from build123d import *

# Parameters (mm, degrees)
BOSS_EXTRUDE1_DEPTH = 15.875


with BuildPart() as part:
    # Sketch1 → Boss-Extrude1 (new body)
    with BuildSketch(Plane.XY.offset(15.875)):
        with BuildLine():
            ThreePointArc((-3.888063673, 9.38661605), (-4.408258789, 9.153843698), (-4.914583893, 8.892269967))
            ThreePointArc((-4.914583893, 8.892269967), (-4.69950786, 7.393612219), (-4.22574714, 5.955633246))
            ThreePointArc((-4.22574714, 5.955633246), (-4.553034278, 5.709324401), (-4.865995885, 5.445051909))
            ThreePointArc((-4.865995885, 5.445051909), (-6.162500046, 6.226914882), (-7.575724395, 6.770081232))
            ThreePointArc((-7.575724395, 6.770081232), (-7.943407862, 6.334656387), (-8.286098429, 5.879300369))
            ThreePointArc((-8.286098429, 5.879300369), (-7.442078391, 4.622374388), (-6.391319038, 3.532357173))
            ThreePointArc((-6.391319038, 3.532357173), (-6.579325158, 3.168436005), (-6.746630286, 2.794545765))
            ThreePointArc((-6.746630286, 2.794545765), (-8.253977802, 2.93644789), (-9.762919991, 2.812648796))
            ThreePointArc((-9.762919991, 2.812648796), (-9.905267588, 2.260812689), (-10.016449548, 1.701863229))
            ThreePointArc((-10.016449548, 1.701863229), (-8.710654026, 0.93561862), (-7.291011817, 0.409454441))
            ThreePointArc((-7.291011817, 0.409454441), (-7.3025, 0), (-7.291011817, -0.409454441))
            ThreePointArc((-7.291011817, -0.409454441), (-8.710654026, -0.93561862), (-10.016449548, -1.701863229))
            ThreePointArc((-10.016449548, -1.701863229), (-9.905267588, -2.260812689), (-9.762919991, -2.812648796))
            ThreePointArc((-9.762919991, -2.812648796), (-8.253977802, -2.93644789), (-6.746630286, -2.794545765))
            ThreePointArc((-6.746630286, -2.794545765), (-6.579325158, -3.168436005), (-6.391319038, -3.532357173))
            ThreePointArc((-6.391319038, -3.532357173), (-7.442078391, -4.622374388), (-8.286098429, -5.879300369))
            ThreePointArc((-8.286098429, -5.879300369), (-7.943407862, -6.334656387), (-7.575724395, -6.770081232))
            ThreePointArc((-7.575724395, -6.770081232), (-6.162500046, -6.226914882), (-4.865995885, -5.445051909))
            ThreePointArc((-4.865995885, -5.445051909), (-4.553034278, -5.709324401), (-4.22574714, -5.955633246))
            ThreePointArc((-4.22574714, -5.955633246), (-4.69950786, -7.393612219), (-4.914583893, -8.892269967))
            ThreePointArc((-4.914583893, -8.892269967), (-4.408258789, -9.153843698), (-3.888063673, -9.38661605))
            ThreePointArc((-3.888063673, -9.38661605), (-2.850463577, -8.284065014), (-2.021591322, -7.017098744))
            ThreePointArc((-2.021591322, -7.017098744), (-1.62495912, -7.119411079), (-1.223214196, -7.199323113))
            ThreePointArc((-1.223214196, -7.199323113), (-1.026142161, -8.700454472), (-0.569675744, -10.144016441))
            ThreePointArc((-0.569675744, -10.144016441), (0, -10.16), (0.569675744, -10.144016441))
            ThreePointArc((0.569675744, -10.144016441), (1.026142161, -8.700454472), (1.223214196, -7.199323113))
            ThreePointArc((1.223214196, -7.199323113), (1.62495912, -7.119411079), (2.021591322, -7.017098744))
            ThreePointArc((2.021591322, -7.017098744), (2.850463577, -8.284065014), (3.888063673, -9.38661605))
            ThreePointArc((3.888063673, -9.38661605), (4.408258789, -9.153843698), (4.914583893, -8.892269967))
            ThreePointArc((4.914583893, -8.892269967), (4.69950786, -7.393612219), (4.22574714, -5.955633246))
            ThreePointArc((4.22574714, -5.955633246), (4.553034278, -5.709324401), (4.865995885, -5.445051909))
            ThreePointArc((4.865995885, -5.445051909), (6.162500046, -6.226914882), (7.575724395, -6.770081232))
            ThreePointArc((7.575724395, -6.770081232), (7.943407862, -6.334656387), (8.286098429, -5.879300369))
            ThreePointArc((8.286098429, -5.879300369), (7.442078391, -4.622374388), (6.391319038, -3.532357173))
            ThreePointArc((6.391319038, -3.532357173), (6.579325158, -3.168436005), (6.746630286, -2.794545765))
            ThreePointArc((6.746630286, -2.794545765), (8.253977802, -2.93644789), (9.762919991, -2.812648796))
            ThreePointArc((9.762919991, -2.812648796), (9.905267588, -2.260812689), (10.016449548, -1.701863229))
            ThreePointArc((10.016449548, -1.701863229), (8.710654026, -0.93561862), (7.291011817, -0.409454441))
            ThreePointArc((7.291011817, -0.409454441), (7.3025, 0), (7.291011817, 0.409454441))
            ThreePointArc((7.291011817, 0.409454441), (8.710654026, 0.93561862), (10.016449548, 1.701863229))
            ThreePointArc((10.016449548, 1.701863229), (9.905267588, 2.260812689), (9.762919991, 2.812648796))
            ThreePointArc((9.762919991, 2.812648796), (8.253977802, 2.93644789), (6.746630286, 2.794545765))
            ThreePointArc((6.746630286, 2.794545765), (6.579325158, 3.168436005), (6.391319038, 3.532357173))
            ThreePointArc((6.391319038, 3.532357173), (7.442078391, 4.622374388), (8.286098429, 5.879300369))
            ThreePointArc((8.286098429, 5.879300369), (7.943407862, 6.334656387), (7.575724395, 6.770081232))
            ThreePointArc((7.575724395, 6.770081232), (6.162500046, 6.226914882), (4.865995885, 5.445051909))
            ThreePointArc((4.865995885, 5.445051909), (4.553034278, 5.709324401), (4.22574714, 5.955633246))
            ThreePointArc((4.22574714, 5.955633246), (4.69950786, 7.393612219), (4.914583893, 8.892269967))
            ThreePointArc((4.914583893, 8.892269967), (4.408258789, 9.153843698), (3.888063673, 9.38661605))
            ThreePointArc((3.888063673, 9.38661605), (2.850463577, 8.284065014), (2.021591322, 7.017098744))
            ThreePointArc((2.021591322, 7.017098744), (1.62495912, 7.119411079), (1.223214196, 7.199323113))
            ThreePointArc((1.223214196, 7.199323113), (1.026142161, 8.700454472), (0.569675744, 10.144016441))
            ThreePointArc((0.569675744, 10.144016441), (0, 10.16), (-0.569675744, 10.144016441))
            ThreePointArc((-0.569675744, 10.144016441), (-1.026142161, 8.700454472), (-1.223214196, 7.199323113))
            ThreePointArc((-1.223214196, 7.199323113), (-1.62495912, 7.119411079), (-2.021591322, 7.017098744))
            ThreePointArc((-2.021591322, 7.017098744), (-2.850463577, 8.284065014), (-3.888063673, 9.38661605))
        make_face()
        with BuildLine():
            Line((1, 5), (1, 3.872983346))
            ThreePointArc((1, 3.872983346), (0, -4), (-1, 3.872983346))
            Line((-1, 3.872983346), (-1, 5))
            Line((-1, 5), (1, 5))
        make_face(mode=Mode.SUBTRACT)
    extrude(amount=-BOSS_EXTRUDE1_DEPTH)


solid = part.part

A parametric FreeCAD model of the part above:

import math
import FreeCAD as App
import Part
import Sketcher
Q = App.Units.Quantity

doc = App.newDocument("Part")
body = doc.addObject("PartDesign::Body", "Body")

# Sketch on XY plane
sketch1 = doc.addObject("Sketcher::SketchObject", "Sketch")
body.addObject(sketch1)
sketch1.AttachmentSupport = (doc.XY_Plane, [""])
sketch1.MapMode = "FlatFace"
sketch1.AttachmentOffset = App.Placement(App.Vector(0, 0, 0.625 * 25.4), App.Rotation())
sketch1.addGeometry([
    Part.ArcOfCircle(Part.Circle(App.Vector(0, 0, 0), App.Vector(0, 0, 1), 10.2), math.radians(112.5), math.radians(118.93)),  # 0
    Part.ArcOfCircle(Part.Circle(App.Vector(3.7, 9.4, 0), App.Vector(0, 0, 1), 8.6), math.radians(-177), math.radians(-157)),  # 1
    Part.ArcOfCircle(Part.Circle(App.Vector(0, 0, 0), App.Vector(0, 0, 1), 7.3), math.radians(125.36), math.radians(131.79)),  # 2
    Part.ArcOfCircle(Part.Circle(App.Vector(-10, -1.5, 0), App.Vector(0, 0, 1), 8.6), math.radians(54), math.radians(74)),  # 3
    Part.ArcOfCircle(Part.Circle(App.Vector(0, 0, 0), App.Vector(0, 0, 1), 10.2), math.radians(138.21), math.radians(144.64)),  # 4
    Part.ArcOfCircle(Part.Circle(App.Vector(-0.7, 10, 0), App.Vector(0, 0, 1), 8.6), math.radians(-151), math.radians(-131)),  # 5
    Part.ArcOfCircle(Part.Circle(App.Vector(0, 0, 0), App.Vector(0, 0, 1), 7.3), math.radians(151.07), math.radians(157.5)),  # 6
    Part.ArcOfCircle(Part.Circle(App.Vector(-8.3, -5.7, 0), App.Vector(0, 0, 1), 8.6), math.radians(80), math.radians(100)),  # 7
    Part.ArcOfCircle(Part.Circle(App.Vector(0, 0, 0), App.Vector(0, 0, 1), 10.2), math.radians(163.93), math.radians(170.36)),  # 8
    Part.ArcOfCircle(Part.Circle(App.Vector(-5, 8.7, 0), App.Vector(0, 0, 1), 8.6), math.radians(-125), math.radians(-105)),  # 9
    Part.ArcOfCircle(Part.Circle(App.Vector(0, 0, 0), App.Vector(0, 0, 1), 7.3), math.radians(176.79), math.radians(183.21)),  # 10
    Part.ArcOfCircle(Part.Circle(App.Vector(-5, -8.7, 0), App.Vector(0, 0, 1), 8.6), math.radians(105), math.radians(125)),  # 11
    Part.ArcOfCircle(Part.Circle(App.Vector(0, 0, 0), App.Vector(0, 0, 1), 10.2), math.radians(-170.36), math.radians(-163.93)),  # 12
    Part.ArcOfCircle(Part.Circle(App.Vector(-8.3, 5.7, 0), App.Vector(0, 0, 1), 8.6), math.radians(-100), math.radians(-80)),  # 13
    Part.ArcOfCircle(Part.Circle(App.Vector(0, 0, 0), App.Vector(0, 0, 1), 7.3), math.radians(-157.5), math.radians(-151.07)),  # 14
    Part.ArcOfCircle(Part.Circle(App.Vector(-0.7, -10, 0), App.Vector(0, 0, 1), 8.6), math.radians(131), math.radians(151)),  # 15
    Part.ArcOfCircle(Part.Circle(App.Vector(0, 0, 0), App.Vector(0, 0, 1), 10.2), math.radians(-144.64), math.radians(-138.21)),  # 16
    Part.ArcOfCircle(Part.Circle(App.Vector(-10, 1.5, 0), App.Vector(0, 0, 1), 8.6), math.radians(-74), math.radians(-54)),  # 17
    Part.ArcOfCircle(Part.Circle(App.Vector(0, 0, 0), App.Vector(0, 0, 1), 7.3), math.radians(-131.79), math.radians(-125.36)),  # 18
    Part.ArcOfCircle(Part.Circle(App.Vector(3.7, -9.4, 0), App.Vector(0, 0, 1), 8.6), math.radians(157), math.radians(177)),  # 19
    Part.ArcOfCircle(Part.Circle(App.Vector(0, 0, 0), App.Vector(0, 0, 1), 10.2), math.radians(-118.93), math.radians(-112.5)),  # 20
    Part.ArcOfCircle(Part.Circle(App.Vector(-9.6, -2.9, 0), App.Vector(0, 0, 1), 8.6), math.radians(-48), math.radians(-28)),  # 21
    Part.ArcOfCircle(Part.Circle(App.Vector(0, 0, 0), App.Vector(0, 0, 1), 7.3), math.radians(-106.07), math.radians(-99.64)),  # 22
    Part.ArcOfCircle(Part.Circle(App.Vector(7.4, -6.8, 0), App.Vector(0, 0, 1), 8.6), math.radians(-178), math.radians(-157)),  # 23
    Part.ArcOfCircle(Part.Circle(App.Vector(0, 0, 0), App.Vector(0, 0, 1), 10.2), math.radians(-93.21), math.radians(-86.79)),  # 24
    Part.ArcOfCircle(Part.Circle(App.Vector(-7.4, -6.8, 0), App.Vector(0, 0, 1), 8.6), math.radians(-23), math.radians(-2)),  # 25
    Part.ArcOfCircle(Part.Circle(App.Vector(0, 0, 0), App.Vector(0, 0, 1), 7.3), math.radians(-80.36), math.radians(-73.93)),  # 26
    Part.ArcOfCircle(Part.Circle(App.Vector(9.6, -2.9, 0), App.Vector(0, 0, 1), 8.6), math.radians(-152), math.radians(-132)),  # 27
    Part.ArcOfCircle(Part.Circle(App.Vector(0, 0, 0), App.Vector(0, 0, 1), 10.2), math.radians(-67.5), math.radians(-61.07)),  # 28
    Part.ArcOfCircle(Part.Circle(App.Vector(-3.7, -9.4, 0), App.Vector(0, 0, 1), 8.6), math.radians(3), math.radians(23)),  # 29
    Part.ArcOfCircle(Part.Circle(App.Vector(0, 0, 0), App.Vector(0, 0, 1), 7.3), math.radians(-54.64), math.radians(-48.21)),  # 30
    Part.ArcOfCircle(Part.Circle(App.Vector(10, 1.5, 0), App.Vector(0, 0, 1), 8.6), math.radians(-126), math.radians(-106)),  # 31
    Part.ArcOfCircle(Part.Circle(App.Vector(0, 0, 0), App.Vector(0, 0, 1), 10.2), math.radians(-41.79), math.radians(-35.36)),  # 32
    Part.ArcOfCircle(Part.Circle(App.Vector(0.7, -10, 0), App.Vector(0, 0, 1), 8.6), math.radians(29), math.radians(49)),  # 33
    Part.ArcOfCircle(Part.Circle(App.Vector(0, 0, 0), App.Vector(0, 0, 1), 7.3), math.radians(-28.93), math.radians(-22.5)),  # 34
    Part.ArcOfCircle(Part.Circle(App.Vector(8.3, 5.7, 0), App.Vector(0, 0, 1), 8.6), math.radians(-100), math.radians(-80)),  # 35
    Part.ArcOfCircle(Part.Circle(App.Vector(0, 0, 0), App.Vector(0, 0, 1), 10.2), math.radians(-16.07), math.radians(-9.64)),  # 36
    Part.ArcOfCircle(Part.Circle(App.Vector(5, -8.7, 0), App.Vector(0, 0, 1), 8.6), math.radians(55), math.radians(75)),  # 37
    Part.ArcOfCircle(Part.Circle(App.Vector(0, 0, 0), App.Vector(0, 0, 1), 7.3), math.radians(-3.21), math.radians(3.21)),  # 38
    Part.ArcOfCircle(Part.Circle(App.Vector(5, 8.7, 0), App.Vector(0, 0, 1), 8.6), math.radians(-75), math.radians(-55)),  # 39
    Part.ArcOfCircle(Part.Circle(App.Vector(0, 0, 0), App.Vector(0, 0, 1), 10.2), math.radians(9.64), math.radians(16.07)),  # 40
    Part.ArcOfCircle(Part.Circle(App.Vector(8.3, -5.7, 0), App.Vector(0, 0, 1), 8.6), math.radians(80), math.radians(100)),  # 41
    Part.ArcOfCircle(Part.Circle(App.Vector(0, 0, 0), App.Vector(0, 0, 1), 7.3), math.radians(22.5), math.radians(28.93)),  # 42
    Part.ArcOfCircle(Part.Circle(App.Vector(0.7, 10, 0), App.Vector(0, 0, 1), 8.6), math.radians(-49), math.radians(-29)),  # 43
    Part.ArcOfCircle(Part.Circle(App.Vector(0, 0, 0), App.Vector(0, 0, 1), 10.2), math.radians(35.36), math.radians(41.79)),  # 44
    Part.ArcOfCircle(Part.Circle(App.Vector(10, -1.5, 0), App.Vector(0, 0, 1), 8.6), math.radians(106), math.radians(126)),  # 45
    Part.ArcOfCircle(Part.Circle(App.Vector(0, 0, 0), App.Vector(0, 0, 1), 7.3), math.radians(48.21), math.radians(54.64)),  # 46
    Part.ArcOfCircle(Part.Circle(App.Vector(-3.7, 9.4, 0), App.Vector(0, 0, 1), 8.6), math.radians(-23), math.radians(-3)),  # 47
    Part.ArcOfCircle(Part.Circle(App.Vector(0, 0, 0), App.Vector(0, 0, 1), 10.2), math.radians(61.07), math.radians(67.5)),  # 48
    Part.ArcOfCircle(Part.Circle(App.Vector(9.6, 2.9, 0), App.Vector(0, 0, 1), 8.6), math.radians(132), math.radians(152)),  # 49
    Part.ArcOfCircle(Part.Circle(App.Vector(0, 0, 0), App.Vector(0, 0, 1), 7.3), math.radians(73.93), math.radians(80.36)),  # 50
    Part.ArcOfCircle(Part.Circle(App.Vector(-7.4, 6.8, 0), App.Vector(0, 0, 1), 8.6), math.radians(2), math.radians(23)),  # 51
    Part.ArcOfCircle(Part.Circle(App.Vector(0, 0, 0), App.Vector(0, 0, 1), 10.2), math.radians(86.79), math.radians(93.21)),  # 52
    Part.ArcOfCircle(Part.Circle(App.Vector(7.4, 6.8, 0), App.Vector(0, 0, 1), 8.6), math.radians(157), math.radians(178)),  # 53
    Part.ArcOfCircle(Part.Circle(App.Vector(0, 0, 0), App.Vector(0, 0, 1), 7.3), math.radians(99.64), math.radians(106.07)),  # 54
    Part.ArcOfCircle(Part.Circle(App.Vector(-9.6, 2.9, 0), App.Vector(0, 0, 1), 8.6), math.radians(28), math.radians(48)),  # 55
    Part.LineSegment(App.Vector(-1, 5, 0), App.Vector(1, 5, 0)),  # 56
    Part.LineSegment(App.Vector(1, 5, 0), App.Vector(1, 3.9, 0)),  # 57
    Part.ArcOfCircle(Part.Circle(App.Vector(0, 0, 0), App.Vector(0, 0, 1), 4), math.radians(104), math.radians(436)),  # 58
    Part.LineSegment(App.Vector(-1, 3.9, 0), App.Vector(-1, 5, 0)),  # 59
], False)
sketch1.addConstraint([
    Sketcher.Constraint("Coincident", 0, 2, 1, 1),
    Sketcher.Constraint("Coincident", 1, 2, 2, 1),
    Sketcher.Constraint("Coincident", 2, 2, 3, 1),
    Sketcher.Constraint("Coincident", 3, 2, 4, 1),
    Sketcher.Constraint("Coincident", 4, 2, 5, 1),
    Sketcher.Constraint("Coincident", 5, 2, 6, 1),
    Sketcher.Constraint("Coincident", 6, 2, 7, 1),
    Sketcher.Constraint("Coincident", 7, 2, 8, 1),
    Sketcher.Constraint("Coincident", 8, 2, 9, 1),
    Sketcher.Constraint("Coincident", 9, 2, 10, 1),
    Sketcher.Constraint("Coincident", 10, 2, 11, 1),
    Sketcher.Constraint("Coincident", 11, 2, 12, 1),
    Sketcher.Constraint("Coincident", 12, 2, 13, 1),
    Sketcher.Constraint("Coincident", 13, 2, 14, 1),
    Sketcher.Constraint("Coincident", 14, 2, 15, 1),
    Sketcher.Constraint("Coincident", 15, 2, 16, 1),
    Sketcher.Constraint("Coincident", 16, 2, 17, 1),
    Sketcher.Constraint("Coincident", 17, 2, 18, 1),
    Sketcher.Constraint("Coincident", 18, 2, 19, 1),
    Sketcher.Constraint("Coincident", 19, 2, 20, 1),
    Sketcher.Constraint("Coincident", 20, 2, 21, 1),
    Sketcher.Constraint("Coincident", 21, 2, 22, 1),
    Sketcher.Constraint("Coincident", 22, 2, 23, 1),
    Sketcher.Constraint("Coincident", 23, 2, 24, 1),
    Sketcher.Constraint("Coincident", 24, 2, 25, 1),
    Sketcher.Constraint("Coincident", 25, 2, 26, 1),
    Sketcher.Constraint("Coincident", 26, 2, 27, 1),
    Sketcher.Constraint("Coincident", 27, 2, 28, 1),
    Sketcher.Constraint("Coincident", 28, 2, 29, 1),
    Sketcher.Constraint("Coincident", 29, 2, 30, 1),
    Sketcher.Constraint("Coincident", 30, 2, 31, 1),
    Sketcher.Constraint("Coincident", 31, 2, 32, 1),
    Sketcher.Constraint("Coincident", 32, 2, 33, 1),
    Sketcher.Constraint("Coincident", 33, 2, 34, 1),
    Sketcher.Constraint("Coincident", 34, 2, 35, 1),
    Sketcher.Constraint("Coincident", 35, 2, 36, 1),
    Sketcher.Constraint("Coincident", 36, 2, 37, 1),
    Sketcher.Constraint("Coincident", 37, 2, 38, 1),
    Sketcher.Constraint("Coincident", 38, 2, 39, 1),
    Sketcher.Constraint("Coincident", 39, 2, 40, 1),
    Sketcher.Constraint("Coincident", 40, 2, 41, 1),
    Sketcher.Constraint("Coincident", 41, 2, 42, 1),
    Sketcher.Constraint("Coincident", 42, 2, 43, 1),
    Sketcher.Constraint("Coincident", 43, 2, 44, 1),
    Sketcher.Constraint("Coincident", 44, 2, 45, 1),
    Sketcher.Constraint("Coincident", 45, 2, 46, 1),
    Sketcher.Constraint("Coincident", 46, 2, 47, 1),
    Sketcher.Constraint("Coincident", 47, 2, 48, 1),
    Sketcher.Constraint("Coincident", 48, 2, 49, 1),
    Sketcher.Constraint("Coincident", 49, 2, 50, 1),
    Sketcher.Constraint("Coincident", 50, 2, 51, 1),
    Sketcher.Constraint("Coincident", 51, 2, 52, 1),
    Sketcher.Constraint("Coincident", 52, 2, 53, 1),
    Sketcher.Constraint("Coincident", 53, 2, 54, 1),
    Sketcher.Constraint("Coincident", 54, 2, 55, 1),
    Sketcher.Constraint("Coincident", 55, 2, 0, 1),
    Sketcher.Constraint("Coincident", 56, 2, 57, 1),
    Sketcher.Constraint("Coincident", 57, 2, 58, 2),
    Sketcher.Constraint("Coincident", 58, 1, 59, 1),
    Sketcher.Constraint("Coincident", 59, 2, 56, 1),
    Sketcher.Constraint("Horizontal", 56),
    Sketcher.Constraint("Vertical", 57),
    Sketcher.Constraint("Vertical", 59),
    Sketcher.Constraint("Coincident", 0, 3, -1, 1),
    Sketcher.Constraint("Coincident", 2, 3, -1, 1),
    Sketcher.Constraint("Coincident", 4, 3, -1, 1),
    Sketcher.Constraint("Coincident", 6, 3, -1, 1),
    Sketcher.Constraint("Coincident", 8, 3, -1, 1),
    Sketcher.Constraint("Coincident", 10, 3, -1, 1),
    Sketcher.Constraint("Coincident", 12, 3, -1, 1),
    Sketcher.Constraint("Coincident", 14, 3, -1, 1),
    Sketcher.Constraint("Coincident", 16, 3, -1, 1),
    Sketcher.Constraint("Coincident", 18, 3, -1, 1),
    Sketcher.Constraint("Coincident", 20, 3, -1, 1),
    Sketcher.Constraint("Coincident", 22, 3, -1, 1),
    Sketcher.Constraint("Coincident", 24, 3, -1, 1),
    Sketcher.Constraint("Coincident", 26, 3, -1, 1),
    Sketcher.Constraint("Coincident", 28, 3, -1, 1),
    Sketcher.Constraint("Coincident", 30, 3, -1, 1),
    Sketcher.Constraint("Coincident", 32, 3, -1, 1),
    Sketcher.Constraint("Coincident", 34, 3, -1, 1),
    Sketcher.Constraint("Coincident", 36, 3, -1, 1),
    Sketcher.Constraint("Coincident", 38, 3, -1, 1),
    Sketcher.Constraint("Coincident", 40, 3, -1, 1),
    Sketcher.Constraint("Coincident", 42, 3, -1, 1),
    Sketcher.Constraint("Coincident", 44, 3, -1, 1),
    Sketcher.Constraint("Coincident", 46, 3, -1, 1),
    Sketcher.Constraint("Coincident", 48, 3, -1, 1),
    Sketcher.Constraint("Coincident", 50, 3, -1, 1),
    Sketcher.Constraint("Coincident", 52, 3, -1, 1),
    Sketcher.Constraint("Coincident", 54, 3, -1, 1),
    Sketcher.Constraint("Coincident", 58, 3, -1, 1),
    Sketcher.Constraint("Equal", 1, 3),
    Sketcher.Constraint("Equal", 0, 4),
    Sketcher.Constraint("Equal", 3, 5),
    Sketcher.Constraint("Equal", 2, 6),
    Sketcher.Constraint("Equal", 5, 7),
    Sketcher.Constraint("Equal", 4, 8),
    Sketcher.Constraint("Equal", 7, 9),
    Sketcher.Constraint("Equal", 6, 10),
    Sketcher.Constraint("Equal", 9, 11),
    Sketcher.Constraint("Equal", 8, 12),
    Sketcher.Constraint("Equal", 11, 13),
    Sketcher.Constraint("Equal", 10, 14),
    Sketcher.Constraint("Equal", 13, 15),
    Sketcher.Constraint("Equal", 12, 16),
    Sketcher.Constraint("Equal", 15, 17),
    Sketcher.Constraint("Equal", 14, 18),
    Sketcher.Constraint("Equal", 17, 19),
    Sketcher.Constraint("Equal", 16, 20),
    Sketcher.Constraint("Equal", 19, 21),
    Sketcher.Constraint("Equal", 18, 22),
    Sketcher.Constraint("Equal", 21, 23),
    Sketcher.Constraint("Equal", 20, 24),
    Sketcher.Constraint("Equal", 23, 25),
    Sketcher.Constraint("Equal", 22, 26),
    Sketcher.Constraint("Equal", 25, 27),
    Sketcher.Constraint("Equal", 24, 28),
    Sketcher.Constraint("Equal", 27, 29),
    Sketcher.Constraint("Equal", 26, 30),
    Sketcher.Constraint("Equal", 29, 31),
    Sketcher.Constraint("Equal", 28, 32),
    Sketcher.Constraint("Equal", 31, 33),
    Sketcher.Constraint("Equal", 30, 34),
    Sketcher.Constraint("Equal", 33, 35),
    Sketcher.Constraint("Equal", 32, 36),
    Sketcher.Constraint("Equal", 35, 37),
    Sketcher.Constraint("Equal", 34, 38),
    Sketcher.Constraint("Equal", 37, 39),
    Sketcher.Constraint("Equal", 36, 40),
    Sketcher.Constraint("Equal", 39, 41),
    Sketcher.Constraint("Equal", 38, 42),
    Sketcher.Constraint("Equal", 41, 43),
    Sketcher.Constraint("Equal", 40, 44),
    Sketcher.Constraint("Equal", 43, 45),
    Sketcher.Constraint("Equal", 42, 46),
    Sketcher.Constraint("Equal", 45, 47),
    Sketcher.Constraint("Equal", 44, 48),
    Sketcher.Constraint("Equal", 47, 49),
    Sketcher.Constraint("Equal", 46, 50),
    Sketcher.Constraint("Equal", 49, 51),
    Sketcher.Constraint("Equal", 48, 52),
    Sketcher.Constraint("Equal", 51, 53),
    Sketcher.Constraint("Equal", 50, 54),
    Sketcher.Constraint("Equal", 53, 55),
    Sketcher.Constraint("Symmetric", 1, 3, 29, 3, -1, 1),
    Sketcher.Constraint("Symmetric", 3, 3, 31, 3, -1, 1),
    Sketcher.Constraint("Symmetric", 5, 3, 33, 3, -1, 1),
    Sketcher.Constraint("Symmetric", 7, 3, 35, 3, -1, 1),
    Sketcher.Constraint("Symmetric", 9, 3, 37, 3, -1, 1),
    Sketcher.Constraint("Symmetric", 11, 3, 39, 3, -1, 1),
    Sketcher.Constraint("Symmetric", 13, 3, 41, 3, -1, 1),
    Sketcher.Constraint("Symmetric", 15, 3, 43, 3, -1, 1),
    Sketcher.Constraint("Symmetric", 17, 3, 45, 3, -1, 1),
    Sketcher.Constraint("Symmetric", 19, 3, 47, 3, -1, 1),
    Sketcher.Constraint("Symmetric", 21, 3, 49, 3, -1, 1),
    Sketcher.Constraint("Symmetric", 23, 3, 51, 3, -1, 1),
    Sketcher.Constraint("Symmetric", 25, 3, 53, 3, -1, 1),
    Sketcher.Constraint("Symmetric", 27, 3, 55, 3, -1, 1),
    Sketcher.Constraint("Symmetric", 23, 3, 25, 3, -2),
    Sketcher.Constraint("Symmetric", 21, 3, 27, 3, -2),
    Sketcher.Constraint("Symmetric", 19, 3, 29, 3, -2),
    Sketcher.Constraint("Symmetric", 17, 3, 31, 3, -2),
    Sketcher.Constraint("Symmetric", 15, 3, 33, 3, -2),
    Sketcher.Constraint("Symmetric", 13, 3, 35, 3, -2),
    Sketcher.Constraint("Symmetric", 11, 3, 37, 3, -2),
    Sketcher.Constraint("Horizontal", 57, 2, 58, 1),
    Sketcher.Constraint("Radius", 0, Q("0.4 in")),
    Sketcher.Constraint("Radius", 2, Q("0.2875 in")),
    Sketcher.Constraint("Radius", 58, 4.0),
    Sketcher.Constraint("Radius", 1, 8.626951),
    Sketcher.Constraint("DistanceX", 56, 1, 56, 2, 2.0),
    Sketcher.Constraint("DistanceX", 4, 2, -1, 1, 8.286098),
    Sketcher.Constraint("DistanceY", 21, 2, -1, 1, 7.017099),
    Sketcher.Constraint("DistanceY", -1, 1, 56, 2, 5.0),
    Sketcher.Constraint("DistanceX", 5, 3, -1, 1, 0.72966),
    Sketcher.Constraint("DistanceY", 23, 3, -1, 1, 6.83129),
    Sketcher.Constraint("DistanceY", -1, 1, 0, 2, 8.89227),
    Sketcher.Constraint("DistanceY", -1, 1, 2, 2, 5.445052),
    Sketcher.Constraint("DistanceY", -1, 1, 3, 2, 6.770081),
    Sketcher.Constraint("DistanceX", 6, 2, -1, 1, 6.74663),
    Sketcher.Constraint("DistanceX", 7, 2, -1, 1, 9.76292),
    Sketcher.Constraint("DistanceX", 8, 2, -1, 1, 10.01645),
    Sketcher.Constraint("DistanceX", 10, 2, -1, 1, 7.291012),
    Sketcher.Constraint("DistanceX", -1, 1, 1, 3, 3.699475),
    Sketcher.Constraint("DistanceX", 21, 3, -1, 1, 9.627446),
    Sketcher.Constraint("DistanceX", -1, 1, 23, 3, 7.395883),
])
pad1 = doc.addObject("PartDesign::Pad", "Pad")
body.addObject(pad1)
pad1.Profile = sketch1
pad1.Length = Q("0.625 in")
pad1.Reversed = True

doc.recompute()
